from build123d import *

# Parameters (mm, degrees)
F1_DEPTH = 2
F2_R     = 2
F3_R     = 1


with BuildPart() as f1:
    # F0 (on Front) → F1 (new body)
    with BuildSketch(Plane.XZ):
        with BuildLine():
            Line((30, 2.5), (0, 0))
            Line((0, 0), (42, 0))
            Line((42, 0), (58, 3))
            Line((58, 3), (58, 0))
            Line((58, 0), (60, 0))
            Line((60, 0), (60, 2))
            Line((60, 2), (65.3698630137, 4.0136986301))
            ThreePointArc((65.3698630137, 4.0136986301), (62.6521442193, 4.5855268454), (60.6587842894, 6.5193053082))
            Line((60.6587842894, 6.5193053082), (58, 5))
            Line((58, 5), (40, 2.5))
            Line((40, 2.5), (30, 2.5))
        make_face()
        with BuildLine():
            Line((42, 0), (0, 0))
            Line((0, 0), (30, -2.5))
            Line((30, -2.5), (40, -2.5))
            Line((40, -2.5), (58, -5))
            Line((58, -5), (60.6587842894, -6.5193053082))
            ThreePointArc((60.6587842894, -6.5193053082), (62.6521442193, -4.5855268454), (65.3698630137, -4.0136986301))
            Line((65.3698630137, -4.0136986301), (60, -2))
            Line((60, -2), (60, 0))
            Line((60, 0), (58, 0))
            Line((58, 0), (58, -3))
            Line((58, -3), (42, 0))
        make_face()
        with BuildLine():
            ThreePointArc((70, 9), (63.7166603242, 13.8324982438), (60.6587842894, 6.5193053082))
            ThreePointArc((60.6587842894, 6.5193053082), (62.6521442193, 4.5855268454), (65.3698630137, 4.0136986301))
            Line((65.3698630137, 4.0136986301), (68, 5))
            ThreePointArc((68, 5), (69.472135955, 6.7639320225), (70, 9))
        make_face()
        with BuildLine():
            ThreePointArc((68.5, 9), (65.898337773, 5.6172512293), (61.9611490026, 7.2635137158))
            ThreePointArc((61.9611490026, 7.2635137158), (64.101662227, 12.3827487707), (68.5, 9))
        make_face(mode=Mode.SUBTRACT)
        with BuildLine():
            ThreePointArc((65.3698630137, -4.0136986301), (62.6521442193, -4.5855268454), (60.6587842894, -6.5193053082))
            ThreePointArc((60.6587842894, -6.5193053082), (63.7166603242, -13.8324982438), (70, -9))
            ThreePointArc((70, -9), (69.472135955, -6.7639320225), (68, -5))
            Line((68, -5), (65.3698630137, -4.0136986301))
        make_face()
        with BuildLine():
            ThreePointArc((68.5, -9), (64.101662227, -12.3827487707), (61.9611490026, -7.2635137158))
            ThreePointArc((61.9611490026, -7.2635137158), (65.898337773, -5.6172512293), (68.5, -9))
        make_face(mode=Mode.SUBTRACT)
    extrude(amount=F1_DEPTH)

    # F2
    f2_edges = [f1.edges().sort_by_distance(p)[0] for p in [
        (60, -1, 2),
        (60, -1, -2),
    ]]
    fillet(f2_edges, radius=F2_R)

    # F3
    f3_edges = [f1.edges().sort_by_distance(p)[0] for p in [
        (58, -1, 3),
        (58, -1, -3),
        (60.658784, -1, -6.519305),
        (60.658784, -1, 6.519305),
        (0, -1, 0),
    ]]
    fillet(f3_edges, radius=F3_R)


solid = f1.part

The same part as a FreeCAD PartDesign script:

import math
import FreeCAD as App
import Part
import Sketcher
Q = App.Units.Quantity


def edges_at(feature, points):
    """Names of the edges that pass closest to the given points."""
    edges = feature.Shape.Edges
    near = lambda p: min(range(len(edges)), key=lambda i: edges[i].distToShape(Part.Vertex(*p))[0])
    return sorted({f"Edge{near(p) + 1}" for p in points})

doc = App.newDocument("Part")
body = doc.addObject("PartDesign::Body", "Body")

sketch1 = body.newObject("Sketcher::SketchObject", "Sketch")
sketch1.AttachmentSupport = (doc.getObject("XZ_Plane"), [""])
sketch1.MapMode = "FlatFace"
sketch1.addGeometry([
    Part.LineSegment(App.Vector(30, 2.5, 0), App.Vector(0, 0, 0)),
    Part.LineSegment(App.Vector(0, 0, 0), App.Vector(30, -2.5, 0)),
    Part.LineSegment(App.Vector(30, -2.5, 0), App.Vector(40, -2.5, 0)),
    Part.LineSegment(App.Vector(40, -2.5, 0), App.Vector(58, -5, 0)),
    Part.LineSegment(App.Vector(58, -5, 0), App.Vector(60.7, -6.5, 0)),
    Part.ArcOfCircle(Part.Circle(App.Vector(65, -9, 0), App.Vector(0, 0, 1), 5), math.radians(150), math.radians(360)),
    Part.ArcOfCircle(Part.Circle(App.Vector(65, -9, 0), App.Vector(0, 0, 1), 5), math.radians(0), math.radians(53)),
    Part.LineSegment(App.Vector(68, -5, 0), App.Vector(65.4, -4, 0)),
    Part.LineSegment(App.Vector(65.4, -4, 0), App.Vector(60, -2, 0)),
    Part.LineSegment(App.Vector(60, -2, 0), App.Vector(60, 2, 0)),
    Part.LineSegment(App.Vector(60, 2, 0), App.Vector(65.4, 4, 0)),
    Part.LineSegment(App.Vector(65.4, 4, 0), App.Vector(68, 5, 0)),
    Part.ArcOfCircle(Part.Circle(App.Vector(65, 9, 0), App.Vector(0, 0, 1), 5), math.radians(-53), math.radians(0)),
    Part.ArcOfCircle(Part.Circle(App.Vector(65, 9, 0), App.Vector(0, 0, 1), 5), math.radians(0), math.radians(210)),
    Part.LineSegment(App.Vector(60.7, 6.5, 0), App.Vector(58, 5, 0)),
    Part.LineSegment(App.Vector(58, 5, 0), App.Vector(40, 2.5, 0)),
    Part.LineSegment(App.Vector(40, 2.5, 0), App.Vector(30, 2.5, 0)),
    Part.ArcOfCircle(Part.Circle(App.Vector(65, -9, 0), App.Vector(0, 0, 1), 3.5), math.radians(0), math.radians(150)),
    Part.ArcOfCircle(Part.Circle(App.Vector(65, -9, 0), App.Vector(0, 0, 1), 3.5), math.radians(150), math.radians(360)),
    Part.LineSegment(App.Vector(42, 0, 0), App.Vector(58, 3, 0)),
    Part.LineSegment(App.Vector(58, 3, 0), App.Vector(58, -3, 0)),
    Part.LineSegment(App.Vector(58, -3, 0), App.Vector(42, 0, 0)),
    Part.ArcOfCircle(Part.Circle(App.Vector(65, 9, 0), App.Vector(0, 0, 1), 3.5), math.radians(0), math.radians(210)),
    Part.ArcOfCircle(Part.Circle(App.Vector(65, 9, 0), App.Vector(0, 0, 1), 3.5), math.radians(-150), math.radians(0)),
], False)
sketch1.addConstraint([
    Sketcher.Constraint("Coincident", 0, 2, 1, 1),
    Sketcher.Constraint("Coincident", 1, 2, 2, 1),
    Sketcher.Constraint("Coincident", 2, 2, 3, 1),
    Sketcher.Constraint("Coincident", 3, 2, 4, 1),
    Sketcher.Constraint("Coincident", 4, 2, 5, 1),
    Sketcher.Constraint("Tangent", 5, 2, 6, 1),
    Sketcher.Constraint("Coincident", 6, 2, 7, 1),
    Sketcher.Constraint("Coincident", 7, 2, 8, 1),
    Sketcher.Constraint("Coincident", 8, 2, 9, 1),
    Sketcher.Constraint("Coincident", 9, 2, 10, 1),
    Sketcher.Constraint("Coincident", 10, 2, 11, 1),
    Sketcher.Constraint("Coincident", 11, 2, 12, 1),
    Sketcher.Constraint("Tangent", 12, 2, 13, 1),
    Sketcher.Constraint("Coincident", 13, 2, 14, 1),
    Sketcher.Constraint("Coincident", 14, 2, 15, 1),
    Sketcher.Constraint("Coincident", 15, 2, 16, 1),
    Sketcher.Constraint("Coincident", 16, 2, 0, 1),
    Sketcher.Constraint("Tangent", 17, 1, 18, 2),
    Sketcher.Constraint("Coincident", 18, 1, 17, 2),
    Sketcher.Constraint("Coincident", 19, 2, 20, 1),
    Sketcher.Constraint("Coincident", 20, 2, 21, 1),
    Sketcher.Constraint("Coincident", 21, 2, 19, 1),
    Sketcher.Constraint("Tangent", 22, 1, 23, 2),
    Sketcher.Constraint("Coincident", 23, 1, 22, 2),
    Sketcher.Constraint("Horizontal", 2),
    Sketcher.Constraint("Vertical", 9),
    Sketcher.Constraint("Horizontal", 16),
    Sketcher.Constraint("Vertical", 20),
    Sketcher.Constraint("Coincident", 0, 2, -1, 1),
    Sketcher.Constraint("Coincident", 17, 3, 5, 3),
    Sketcher.Constraint("Coincident", 22, 3, 12, 3),
    Sketcher.Constraint("Equal", 5, 6),
    Sketcher.Constraint("Equal", 6, 12),
    Sketcher.Constraint("Equal", 12, 13),
    Sketcher.Constraint("Equal", 18, 22),
    Sketcher.Constraint("Symmetric", 5, 3, 12, 3, -1),
    Sketcher.Constraint("Symmetric", 7, 2, 10, 2, -1),
    Sketcher.Constraint("Symmetric", 3, 2, 14, 2, -1),
    Sketcher.Constraint("Symmetric", 2, 2, 15, 2, -1),
    Sketcher.Constraint("PointOnObject", 21, 2, -1),
    Sketcher.Constraint("Parallel", 7, 8),
    Sketcher.Constraint("Parallel", 10, 11),
    Sketcher.Constraint("Horizontal", 18, 3, 5, 2),
    Sketcher.Constraint("Horizontal", 3, 2, 6, 2),
    Sketcher.Constraint("Horizontal", 23, 3, 12, 2),
    Sketcher.Constraint("Horizontal", 11, 2, 14, 2),
    Sketcher.Constraint("Horizontal", 5, 2, 17, 1),
    Sketcher.Constraint("Horizontal", 12, 2, 22, 1),
    Sketcher.Constraint("Vertical", 4, 2, 13, 2),
    Sketcher.Constraint("Vertical", 1, 2, 16, 2),
    Sketcher.Constraint("Vertical", 14, 2, 19, 2),
    Sketcher.Constraint("Vertical", 18, 1, 23, 1),
    Sketcher.Constraint("Equal", 19, 21),
    Sketcher.Constraint("Radius", 5, Q("5 mm")),
    Sketcher.Constraint("Radius", 17, Q("3.5 mm")),
    Sketcher.Constraint("DistanceX", 2, 1, 2, 2, Q("10 mm")),
    Sketcher.Constraint("DistanceY", 9, 1, 9, 2, Q("4 mm")),
    Sketcher.Constraint("DistanceY", 20, 2, 20, 1, Q("6 mm")),
    Sketcher.Constraint("DistanceX", -1, 1, 5, 3, Q("65 mm")),
    Sketcher.Constraint("DistanceY", 5, 3, -1, 1, Q("9 mm")),
    Sketcher.Constraint("DistanceX", -1, 1, 1, 2, Q("30 mm")),
    Sketcher.Constraint("DistanceX", -1, 1, 3, 2, Q("58 mm")),
    Sketcher.Constraint("DistanceY", 3, 2, -1, 1, Q("5 mm")),
    Sketcher.Constraint("DistanceX", -1, 1, 8, 2, Q("60 mm")),
    Sketcher.Constraint("DistanceX", -1, 1, 21, 2, Q("42 mm")),
    Sketcher.Constraint("DistanceY", 2, 2, 15, 2, Q("5 mm")),
    Sketcher.Constraint("DistanceY", 7, 2, -1, 1, Q("4.013699 mm")),
    Sketcher.Constraint("DistanceX", -1, 1, 18, 1, Q("61.961149 mm")),
    Sketcher.Constraint("DistanceY", 18, 1, 4, 2, Q("0.744208 mm")),
])
pad1 = body.newObject("PartDesign::Pad", "Pad")
pad1.Profile = sketch1
pad1.Length = 2
doc.recompute()

fillet = body.newObject("PartDesign::Fillet", "Fillet")
fillet.Base = (pad1, edges_at(pad1, [(60, -1, 2), (60, -1, -2)]))
fillet.Radius = 2
doc.recompute()

fillet2 = body.newObject("PartDesign::Fillet", "Fillet001")
fillet2.Base = (fillet, edges_at(fillet, [
    (58, -1, 3),
    (58, -1, -3),
    (60.659, -1, -6.519),
    (60.659, -1, 6.519),
    (0, -1, 0),
]))
fillet2.Radius = 1

doc.recompute()
